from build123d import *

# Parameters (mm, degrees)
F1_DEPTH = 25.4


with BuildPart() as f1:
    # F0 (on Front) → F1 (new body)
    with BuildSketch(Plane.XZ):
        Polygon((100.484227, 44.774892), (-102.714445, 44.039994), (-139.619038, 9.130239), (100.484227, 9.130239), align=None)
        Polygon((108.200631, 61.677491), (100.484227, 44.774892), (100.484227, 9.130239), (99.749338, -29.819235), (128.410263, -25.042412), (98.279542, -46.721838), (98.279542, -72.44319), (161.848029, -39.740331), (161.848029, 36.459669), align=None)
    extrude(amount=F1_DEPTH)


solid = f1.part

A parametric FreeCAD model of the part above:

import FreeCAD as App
import Part
import Sketcher

V = App.Vector
Q = App.Units.Quantity

doc = App.newDocument("Part")
body = doc.addObject("PartDesign::Body", "Body")

# Sketch on XZ plane
sketch1 = doc.addObject("Sketcher::SketchObject", "Sketch")
body.addObject(sketch1)
sketch1.AttachmentSupport = (doc.XZ_Plane, [""])
sketch1.MapMode = "FlatFace"
sketch1.addGeometry([
    Part.LineSegment(V(100, 45, 0), V(-103, 44, 0)),  # 0
    Part.LineSegment(V(-103, 44, 0), V(-140, 9, 0)),  # 1
    Part.LineSegment(V(-140, 9, 0), V(100, 9, 0)),  # 2
    Part.LineSegment(V(100, 9, 0), V(100, -30, 0)),  # 3
    Part.LineSegment(V(100, -30, 0), V(128, -25, 0)),  # 4
    Part.LineSegment(V(128, -25, 0), V(98, -47, 0)),  # 5
    Part.LineSegment(V(98, -47, 0), V(98, -72, 0)),  # 6
    Part.LineSegment(V(98, -72, 0), V(162, -40, 0)),  # 7
    Part.LineSegment(V(162, -40, 0), V(162, 36, 0)),  # 8
    Part.LineSegment(V(162, 36, 0), V(108, 62, 0)),  # 9
    Part.LineSegment(V(108, 62, 0), V(100, 45, 0)),  # 10
], False)
sketch1.addConstraint([
    Sketcher.Constraint("Coincident", 0, 2, 1, 1),
    Sketcher.Constraint("Coincident", 1, 2, 2, 1),
    Sketcher.Constraint("Coincident", 2, 2, 3, 1),
    Sketcher.Constraint("Coincident", 3, 2, 4, 1),
    Sketcher.Constraint("Coincident", 4, 2, 5, 1),
    Sketcher.Constraint("Coincident", 5, 2, 6, 1),
    Sketcher.Constraint("Coincident", 6, 2, 7, 1),
    Sketcher.Constraint("Coincident", 7, 2, 8, 1),
    Sketcher.Constraint("Coincident", 8, 2, 9, 1),
    Sketcher.Constraint("Coincident", 9, 2, 10, 1),
    Sketcher.Constraint("Coincident", 10, 2, 0, 1),
    Sketcher.Constraint("Horizontal", 2),
    Sketcher.Constraint("Vertical", 6),
    Sketcher.Constraint("Vertical", 8),
    Sketcher.Constraint("Vertical", 2, 2, 10, 2),
    Sketcher.Constraint("DistanceY", 8, 1, 8, 2, Q("3 in")),
    Sketcher.Constraint("Distance", 0, Q("8 in")),
    Sketcher.Constraint("Distance", 1, Q("2 in")),
    Sketcher.Constraint("DistanceY", 1, 2, 0, 2, Q("1.3743998 in")),
    Sketcher.Constraint("DistanceX", 1, 2, 4, 2, Q("268.029301 mm")),
    Sketcher.Constraint("DistanceX", 2, 2, 7, 2, Q("61.363802 mm")),
    Sketcher.Constraint("DistanceY", 10, 2, 9, 2, Q("16.902599 mm")),
    Sketcher.Constraint("Distance", 7, Q("71.487268 mm")),
    Sketcher.Constraint("Distance", 9, Q("59.278848 mm")),
    Sketcher.Constraint("DistanceY", 6, 2, 6, 1, Q("25.721352 mm")),
    Sketcher.Constraint("DistanceY", -1, 1, 1, 2, Q("9.130239 mm")),
    Sketcher.Constraint("DistanceY", 4, 2, -1, 1, Q("25.042412 mm")),
    Sketcher.Constraint("DistanceY", 6, 2, -1, 1, Q("72.44319 mm")),
    Sketcher.Constraint("DistanceX", -1, 1, 7, 2, Q("161.848029 mm")),
    Sketcher.Constraint("DistanceY", 7, 2, -1, 1, Q("39.740331 mm")),
    Sketcher.Constraint("DistanceX", -1, 1, 9, 2, Q("108.200631 mm")),
    Sketcher.Constraint("DistanceX", 3, 2, 2, 2, Q("0.734889 mm")),
    Sketcher.Constraint("DistanceY", 3, 2, 0, 2, Q("73.859229 mm")),
])
pad1 = doc.addObject("PartDesign::Pad", "Pad")
body.addObject(pad1)
pad1.Profile = sketch1
pad1.Length = Q("1 in")

doc.recompute()
